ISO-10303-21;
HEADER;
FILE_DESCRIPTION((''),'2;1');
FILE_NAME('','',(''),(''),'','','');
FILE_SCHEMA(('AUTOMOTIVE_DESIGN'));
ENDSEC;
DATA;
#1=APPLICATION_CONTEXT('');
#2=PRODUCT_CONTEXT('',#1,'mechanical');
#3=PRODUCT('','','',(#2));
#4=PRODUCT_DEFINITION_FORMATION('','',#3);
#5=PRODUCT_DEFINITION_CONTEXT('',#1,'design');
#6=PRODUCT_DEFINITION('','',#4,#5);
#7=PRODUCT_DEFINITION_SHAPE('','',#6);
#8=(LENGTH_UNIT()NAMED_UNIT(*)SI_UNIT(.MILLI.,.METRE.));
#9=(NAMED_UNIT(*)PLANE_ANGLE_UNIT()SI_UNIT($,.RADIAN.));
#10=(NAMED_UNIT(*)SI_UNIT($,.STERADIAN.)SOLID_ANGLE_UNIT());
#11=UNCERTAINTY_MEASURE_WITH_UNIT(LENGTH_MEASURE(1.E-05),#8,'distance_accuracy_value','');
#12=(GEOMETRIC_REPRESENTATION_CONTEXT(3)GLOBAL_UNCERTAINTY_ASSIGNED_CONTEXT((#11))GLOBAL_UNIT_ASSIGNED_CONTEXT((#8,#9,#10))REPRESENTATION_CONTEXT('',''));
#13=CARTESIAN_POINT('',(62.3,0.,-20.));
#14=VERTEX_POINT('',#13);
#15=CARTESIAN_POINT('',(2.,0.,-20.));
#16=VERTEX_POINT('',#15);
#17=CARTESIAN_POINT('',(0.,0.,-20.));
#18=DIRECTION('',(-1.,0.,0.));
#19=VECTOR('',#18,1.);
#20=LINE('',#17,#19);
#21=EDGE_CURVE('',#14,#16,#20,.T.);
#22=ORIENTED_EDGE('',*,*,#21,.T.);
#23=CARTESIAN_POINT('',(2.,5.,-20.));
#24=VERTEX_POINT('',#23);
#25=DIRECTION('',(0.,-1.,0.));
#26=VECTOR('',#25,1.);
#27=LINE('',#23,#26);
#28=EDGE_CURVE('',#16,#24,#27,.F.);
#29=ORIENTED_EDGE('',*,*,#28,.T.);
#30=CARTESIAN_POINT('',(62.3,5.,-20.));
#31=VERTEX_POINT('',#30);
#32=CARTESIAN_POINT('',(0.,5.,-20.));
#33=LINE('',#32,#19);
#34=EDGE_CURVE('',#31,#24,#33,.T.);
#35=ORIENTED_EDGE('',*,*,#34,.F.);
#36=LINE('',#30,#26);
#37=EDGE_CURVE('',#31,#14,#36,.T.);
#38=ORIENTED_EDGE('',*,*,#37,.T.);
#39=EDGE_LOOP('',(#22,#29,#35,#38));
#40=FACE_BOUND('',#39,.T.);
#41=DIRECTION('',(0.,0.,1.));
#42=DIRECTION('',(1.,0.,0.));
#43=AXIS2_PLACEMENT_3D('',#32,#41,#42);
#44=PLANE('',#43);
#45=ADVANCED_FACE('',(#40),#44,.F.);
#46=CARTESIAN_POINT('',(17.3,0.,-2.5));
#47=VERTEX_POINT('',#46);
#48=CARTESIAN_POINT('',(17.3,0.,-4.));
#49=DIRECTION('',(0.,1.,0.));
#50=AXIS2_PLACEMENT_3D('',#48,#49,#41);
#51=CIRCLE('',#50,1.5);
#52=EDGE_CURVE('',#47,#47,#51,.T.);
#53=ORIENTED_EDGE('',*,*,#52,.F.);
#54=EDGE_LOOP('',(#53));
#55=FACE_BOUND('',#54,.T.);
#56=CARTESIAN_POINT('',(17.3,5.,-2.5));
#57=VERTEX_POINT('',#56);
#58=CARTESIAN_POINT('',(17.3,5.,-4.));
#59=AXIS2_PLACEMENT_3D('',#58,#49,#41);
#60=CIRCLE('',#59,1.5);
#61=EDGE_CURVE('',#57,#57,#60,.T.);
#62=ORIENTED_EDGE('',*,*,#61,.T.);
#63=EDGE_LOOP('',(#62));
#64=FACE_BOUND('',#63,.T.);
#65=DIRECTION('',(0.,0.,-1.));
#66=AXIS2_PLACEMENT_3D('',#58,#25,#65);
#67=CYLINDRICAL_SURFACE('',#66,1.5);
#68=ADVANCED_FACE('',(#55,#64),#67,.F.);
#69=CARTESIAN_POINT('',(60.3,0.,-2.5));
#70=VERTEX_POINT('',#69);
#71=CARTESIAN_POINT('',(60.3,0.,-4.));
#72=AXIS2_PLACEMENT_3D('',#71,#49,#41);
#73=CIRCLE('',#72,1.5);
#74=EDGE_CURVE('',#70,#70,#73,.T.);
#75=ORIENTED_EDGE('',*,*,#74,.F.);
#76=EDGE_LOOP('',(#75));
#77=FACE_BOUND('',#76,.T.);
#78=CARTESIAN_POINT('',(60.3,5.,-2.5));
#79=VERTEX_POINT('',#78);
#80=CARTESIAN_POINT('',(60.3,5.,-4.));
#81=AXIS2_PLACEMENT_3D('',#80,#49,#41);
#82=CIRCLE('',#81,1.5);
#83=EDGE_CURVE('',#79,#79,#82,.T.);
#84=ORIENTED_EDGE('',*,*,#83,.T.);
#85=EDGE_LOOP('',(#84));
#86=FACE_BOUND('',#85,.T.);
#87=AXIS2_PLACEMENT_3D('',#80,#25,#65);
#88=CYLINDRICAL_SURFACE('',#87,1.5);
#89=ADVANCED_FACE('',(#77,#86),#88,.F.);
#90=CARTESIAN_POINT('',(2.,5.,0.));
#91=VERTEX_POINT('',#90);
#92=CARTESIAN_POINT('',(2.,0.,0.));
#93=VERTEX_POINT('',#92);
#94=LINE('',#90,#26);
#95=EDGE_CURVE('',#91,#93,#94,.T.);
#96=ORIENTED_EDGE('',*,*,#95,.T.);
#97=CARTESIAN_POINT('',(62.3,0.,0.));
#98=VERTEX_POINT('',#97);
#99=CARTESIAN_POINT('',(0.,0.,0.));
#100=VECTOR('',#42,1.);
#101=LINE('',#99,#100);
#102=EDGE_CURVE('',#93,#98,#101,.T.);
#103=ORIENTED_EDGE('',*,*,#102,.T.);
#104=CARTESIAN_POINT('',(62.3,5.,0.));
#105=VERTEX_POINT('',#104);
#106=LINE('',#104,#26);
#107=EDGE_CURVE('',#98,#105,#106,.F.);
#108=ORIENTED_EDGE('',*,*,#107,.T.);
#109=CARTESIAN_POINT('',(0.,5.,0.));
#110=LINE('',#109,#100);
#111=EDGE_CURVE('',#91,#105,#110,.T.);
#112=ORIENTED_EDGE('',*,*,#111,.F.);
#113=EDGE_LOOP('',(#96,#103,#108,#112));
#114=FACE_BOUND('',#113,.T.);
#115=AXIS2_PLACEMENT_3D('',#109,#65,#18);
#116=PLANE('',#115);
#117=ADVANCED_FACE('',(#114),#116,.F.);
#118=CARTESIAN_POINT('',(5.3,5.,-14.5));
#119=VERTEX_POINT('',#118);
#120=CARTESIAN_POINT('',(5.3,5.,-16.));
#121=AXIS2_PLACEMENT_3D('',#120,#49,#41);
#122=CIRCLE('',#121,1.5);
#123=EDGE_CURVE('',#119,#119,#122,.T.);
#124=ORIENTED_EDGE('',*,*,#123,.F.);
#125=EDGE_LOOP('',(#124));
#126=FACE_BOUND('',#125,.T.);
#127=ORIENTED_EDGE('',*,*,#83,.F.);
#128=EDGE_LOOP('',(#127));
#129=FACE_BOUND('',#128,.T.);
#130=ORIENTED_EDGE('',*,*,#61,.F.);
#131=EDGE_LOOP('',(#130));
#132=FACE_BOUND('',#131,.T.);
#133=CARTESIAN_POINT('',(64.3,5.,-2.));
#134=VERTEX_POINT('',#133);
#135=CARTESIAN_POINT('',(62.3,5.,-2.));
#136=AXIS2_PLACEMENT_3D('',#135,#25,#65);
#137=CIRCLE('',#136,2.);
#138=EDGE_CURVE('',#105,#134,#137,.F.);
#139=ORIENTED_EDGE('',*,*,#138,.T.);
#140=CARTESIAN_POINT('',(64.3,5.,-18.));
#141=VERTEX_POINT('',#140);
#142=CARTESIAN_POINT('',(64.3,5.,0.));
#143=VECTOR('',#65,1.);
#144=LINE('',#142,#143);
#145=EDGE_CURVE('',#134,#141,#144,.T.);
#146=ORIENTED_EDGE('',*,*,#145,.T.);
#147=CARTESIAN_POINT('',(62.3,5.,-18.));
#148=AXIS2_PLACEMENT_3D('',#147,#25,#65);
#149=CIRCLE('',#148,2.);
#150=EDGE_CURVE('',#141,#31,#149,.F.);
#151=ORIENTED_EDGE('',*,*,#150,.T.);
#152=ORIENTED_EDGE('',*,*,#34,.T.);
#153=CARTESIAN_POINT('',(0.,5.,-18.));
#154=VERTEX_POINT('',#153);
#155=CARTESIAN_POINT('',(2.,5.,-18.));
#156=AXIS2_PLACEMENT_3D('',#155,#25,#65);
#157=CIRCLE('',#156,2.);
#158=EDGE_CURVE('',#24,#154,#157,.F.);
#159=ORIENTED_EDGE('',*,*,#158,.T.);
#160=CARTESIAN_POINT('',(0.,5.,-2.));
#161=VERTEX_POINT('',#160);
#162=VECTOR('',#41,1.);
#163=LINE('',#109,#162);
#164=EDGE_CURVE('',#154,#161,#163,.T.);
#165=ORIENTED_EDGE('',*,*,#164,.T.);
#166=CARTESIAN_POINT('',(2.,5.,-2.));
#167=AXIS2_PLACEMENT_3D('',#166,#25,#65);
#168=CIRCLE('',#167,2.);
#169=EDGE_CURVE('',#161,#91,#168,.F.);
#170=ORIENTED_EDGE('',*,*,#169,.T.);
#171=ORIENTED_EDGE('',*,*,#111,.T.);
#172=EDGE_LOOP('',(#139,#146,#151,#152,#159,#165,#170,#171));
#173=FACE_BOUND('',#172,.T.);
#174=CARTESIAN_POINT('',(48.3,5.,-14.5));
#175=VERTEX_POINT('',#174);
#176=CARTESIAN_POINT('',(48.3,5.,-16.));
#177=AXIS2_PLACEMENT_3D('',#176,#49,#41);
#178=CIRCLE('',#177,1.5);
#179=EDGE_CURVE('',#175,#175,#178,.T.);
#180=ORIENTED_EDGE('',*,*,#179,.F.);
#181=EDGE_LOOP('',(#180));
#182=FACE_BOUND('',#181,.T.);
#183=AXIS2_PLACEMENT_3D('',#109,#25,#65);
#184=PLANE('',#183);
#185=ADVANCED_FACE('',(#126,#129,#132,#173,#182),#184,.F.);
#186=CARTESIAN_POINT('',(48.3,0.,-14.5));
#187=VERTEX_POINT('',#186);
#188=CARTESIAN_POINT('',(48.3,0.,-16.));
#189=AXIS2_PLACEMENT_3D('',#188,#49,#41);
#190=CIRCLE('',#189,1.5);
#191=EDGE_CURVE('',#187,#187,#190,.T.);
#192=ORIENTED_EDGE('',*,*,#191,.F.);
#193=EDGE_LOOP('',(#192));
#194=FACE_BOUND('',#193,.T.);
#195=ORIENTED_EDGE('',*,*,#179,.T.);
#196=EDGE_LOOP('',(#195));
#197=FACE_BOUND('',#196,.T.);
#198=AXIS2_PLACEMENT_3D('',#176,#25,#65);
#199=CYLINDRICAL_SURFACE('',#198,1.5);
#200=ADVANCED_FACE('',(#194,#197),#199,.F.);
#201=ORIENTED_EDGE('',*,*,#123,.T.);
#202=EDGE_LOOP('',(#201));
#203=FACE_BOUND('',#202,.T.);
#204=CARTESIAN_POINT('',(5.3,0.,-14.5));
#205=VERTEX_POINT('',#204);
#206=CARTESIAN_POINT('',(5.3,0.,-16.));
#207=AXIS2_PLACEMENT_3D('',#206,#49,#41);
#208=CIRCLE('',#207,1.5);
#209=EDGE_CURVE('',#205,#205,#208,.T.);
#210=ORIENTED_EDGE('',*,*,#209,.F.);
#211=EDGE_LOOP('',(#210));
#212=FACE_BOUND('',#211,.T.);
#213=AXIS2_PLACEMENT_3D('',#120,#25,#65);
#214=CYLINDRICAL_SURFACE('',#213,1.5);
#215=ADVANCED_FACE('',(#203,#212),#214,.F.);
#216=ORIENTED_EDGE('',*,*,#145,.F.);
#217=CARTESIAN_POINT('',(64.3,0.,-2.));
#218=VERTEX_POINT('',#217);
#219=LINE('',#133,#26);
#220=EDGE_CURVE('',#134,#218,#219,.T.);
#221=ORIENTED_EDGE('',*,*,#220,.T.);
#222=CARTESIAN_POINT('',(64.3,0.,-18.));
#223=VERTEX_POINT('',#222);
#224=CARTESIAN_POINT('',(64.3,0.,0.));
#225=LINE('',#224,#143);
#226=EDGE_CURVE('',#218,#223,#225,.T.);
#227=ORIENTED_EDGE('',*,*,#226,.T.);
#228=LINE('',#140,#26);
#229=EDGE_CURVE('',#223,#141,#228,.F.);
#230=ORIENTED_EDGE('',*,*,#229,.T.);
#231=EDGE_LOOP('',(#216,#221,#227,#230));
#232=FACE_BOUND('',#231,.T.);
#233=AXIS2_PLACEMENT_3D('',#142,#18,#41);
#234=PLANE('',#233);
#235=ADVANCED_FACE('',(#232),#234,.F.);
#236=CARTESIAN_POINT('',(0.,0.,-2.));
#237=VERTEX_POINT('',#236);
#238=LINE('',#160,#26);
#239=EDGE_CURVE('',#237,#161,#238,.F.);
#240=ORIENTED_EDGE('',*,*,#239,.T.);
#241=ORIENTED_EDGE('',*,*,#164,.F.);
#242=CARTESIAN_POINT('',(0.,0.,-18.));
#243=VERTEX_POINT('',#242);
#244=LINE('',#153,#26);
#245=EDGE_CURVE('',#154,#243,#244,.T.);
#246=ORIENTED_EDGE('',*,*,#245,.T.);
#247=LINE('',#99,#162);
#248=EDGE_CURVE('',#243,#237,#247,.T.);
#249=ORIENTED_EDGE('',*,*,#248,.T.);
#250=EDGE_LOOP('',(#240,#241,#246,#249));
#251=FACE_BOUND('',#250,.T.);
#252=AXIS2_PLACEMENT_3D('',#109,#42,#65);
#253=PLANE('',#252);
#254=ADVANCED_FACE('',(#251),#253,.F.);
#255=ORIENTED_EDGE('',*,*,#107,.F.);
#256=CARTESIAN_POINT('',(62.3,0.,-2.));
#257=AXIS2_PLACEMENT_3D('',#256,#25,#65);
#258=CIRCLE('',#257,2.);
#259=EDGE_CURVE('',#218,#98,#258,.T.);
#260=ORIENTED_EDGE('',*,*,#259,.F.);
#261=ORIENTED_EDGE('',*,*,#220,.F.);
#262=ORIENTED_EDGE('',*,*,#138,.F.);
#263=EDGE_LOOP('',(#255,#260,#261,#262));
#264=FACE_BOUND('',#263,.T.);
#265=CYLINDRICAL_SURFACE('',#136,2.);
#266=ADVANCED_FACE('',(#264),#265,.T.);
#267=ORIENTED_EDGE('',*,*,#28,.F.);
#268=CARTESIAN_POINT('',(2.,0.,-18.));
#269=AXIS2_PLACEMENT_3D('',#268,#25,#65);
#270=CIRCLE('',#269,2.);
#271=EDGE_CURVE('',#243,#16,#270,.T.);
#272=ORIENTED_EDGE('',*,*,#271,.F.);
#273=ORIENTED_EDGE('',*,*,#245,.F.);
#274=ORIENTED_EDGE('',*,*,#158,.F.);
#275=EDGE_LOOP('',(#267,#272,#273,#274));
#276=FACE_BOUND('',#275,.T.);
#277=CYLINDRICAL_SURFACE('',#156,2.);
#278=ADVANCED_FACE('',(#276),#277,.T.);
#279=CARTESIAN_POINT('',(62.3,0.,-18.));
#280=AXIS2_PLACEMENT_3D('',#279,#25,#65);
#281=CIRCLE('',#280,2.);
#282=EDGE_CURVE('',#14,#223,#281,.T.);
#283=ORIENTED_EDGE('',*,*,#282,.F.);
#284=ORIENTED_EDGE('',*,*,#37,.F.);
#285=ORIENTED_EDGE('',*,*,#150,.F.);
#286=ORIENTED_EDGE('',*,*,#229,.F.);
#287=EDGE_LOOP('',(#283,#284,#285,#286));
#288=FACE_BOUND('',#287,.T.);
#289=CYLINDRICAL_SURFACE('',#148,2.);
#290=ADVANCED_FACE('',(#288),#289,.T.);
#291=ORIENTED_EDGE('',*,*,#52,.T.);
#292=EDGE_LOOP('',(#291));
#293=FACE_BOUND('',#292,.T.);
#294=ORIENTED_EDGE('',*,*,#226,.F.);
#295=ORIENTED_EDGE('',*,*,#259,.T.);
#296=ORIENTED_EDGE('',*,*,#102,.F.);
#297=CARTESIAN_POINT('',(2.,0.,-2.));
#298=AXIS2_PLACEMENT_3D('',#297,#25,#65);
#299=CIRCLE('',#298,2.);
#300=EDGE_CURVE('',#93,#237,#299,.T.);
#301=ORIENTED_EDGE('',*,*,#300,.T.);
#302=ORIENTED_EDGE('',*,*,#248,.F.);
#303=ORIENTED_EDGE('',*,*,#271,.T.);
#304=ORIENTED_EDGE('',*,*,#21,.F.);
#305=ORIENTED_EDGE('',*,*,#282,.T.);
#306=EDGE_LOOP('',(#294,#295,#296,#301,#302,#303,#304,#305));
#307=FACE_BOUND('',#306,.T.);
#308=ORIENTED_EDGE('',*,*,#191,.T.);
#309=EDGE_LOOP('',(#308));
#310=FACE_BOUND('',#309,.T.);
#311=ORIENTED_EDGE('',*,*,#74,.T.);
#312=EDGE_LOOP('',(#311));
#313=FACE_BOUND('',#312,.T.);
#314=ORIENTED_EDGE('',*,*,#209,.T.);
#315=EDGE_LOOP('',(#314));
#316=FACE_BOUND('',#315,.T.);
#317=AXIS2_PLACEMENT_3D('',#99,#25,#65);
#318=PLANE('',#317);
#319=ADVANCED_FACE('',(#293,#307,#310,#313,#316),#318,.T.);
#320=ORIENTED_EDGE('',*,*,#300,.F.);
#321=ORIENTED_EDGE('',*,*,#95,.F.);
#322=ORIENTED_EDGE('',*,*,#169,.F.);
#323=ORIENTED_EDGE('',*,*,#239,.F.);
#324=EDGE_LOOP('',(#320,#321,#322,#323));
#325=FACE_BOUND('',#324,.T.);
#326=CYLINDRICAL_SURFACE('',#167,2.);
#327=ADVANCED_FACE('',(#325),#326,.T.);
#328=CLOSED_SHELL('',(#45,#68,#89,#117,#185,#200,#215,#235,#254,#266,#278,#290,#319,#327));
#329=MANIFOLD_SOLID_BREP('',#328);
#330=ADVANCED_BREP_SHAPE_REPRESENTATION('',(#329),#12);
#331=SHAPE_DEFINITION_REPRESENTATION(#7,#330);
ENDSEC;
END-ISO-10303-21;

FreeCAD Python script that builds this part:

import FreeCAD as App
import Part
import Sketcher
Q = App.Units.Quantity


def edges_at(feature, points):
    """Names of the edges that pass closest to the given points."""
    edges = feature.Shape.Edges
    near = lambda p: min(range(len(edges)), key=lambda i: edges[i].distToShape(Part.Vertex(*p))[0])
    return sorted({f"Edge{near(p) + 1}" for p in points})


def add_polygon(sketch, points):
    """Adds a closed chain of lines whose ends are joined by coincident constraints."""
    first, n = sketch.GeometryCount, len(points)
    for a, b in zip(points, points[1:] + points[:1]):
        sketch.addGeometry(Part.LineSegment(App.Vector(*a, 0), App.Vector(*b, 0)), False)
    for i in range(n):
        sketch.addConstraint(Sketcher.Constraint("Coincident", first + i, 2, first + (i + 1) % n, 1))

doc = App.newDocument("Part")
body = doc.addObject("PartDesign::Body", "Body")

sketch1 = doc.addObject("Sketcher::SketchObject", "Sketch")
body.addObject(sketch1)
sketch1.AttachmentSupport = (doc.XZ_Plane, [""])
sketch1.MapMode = "FlatFace"
add_polygon(sketch1, [(0, -20), (0, 0), (64.3, 0), (64.3, -20)])
sketch1.addGeometry(Part.Circle(App.Vector(17.3, -4, 0), App.Vector(0, 0, 1), 1.5), False)
sketch1.addGeometry(Part.Circle(App.Vector(60.3, -4, 0), App.Vector(0, 0, 1), 1.5), False)
sketch1.addGeometry(Part.Circle(App.Vector(5.3, -16, 0), App.Vector(0, 0, 1), 1.5), False)
sketch1.addGeometry(Part.Circle(App.Vector(48.3, -16, 0), App.Vector(0, 0, 1), 1.5), False)
sketch1.addConstraint(Sketcher.Constraint("Vertical", 0))
sketch1.addConstraint(Sketcher.Constraint("Horizontal", 1))
sketch1.addConstraint(Sketcher.Constraint("Vertical", 2))
sketch1.addConstraint(Sketcher.Constraint("Horizontal", 3))
sketch1.addConstraint(Sketcher.Constraint("Coincident", 0, 2, -1, 1))
sketch1.addConstraint(Sketcher.Constraint("Equal", 4, 5))
sketch1.addConstraint(Sketcher.Constraint("Equal", 5, 6))
sketch1.addConstraint(Sketcher.Constraint("Equal", 6, 7))
sketch1.addConstraint(Sketcher.Constraint("Horizontal", 4, 3, 5, 3))
sketch1.addConstraint(Sketcher.Constraint("Horizontal", 6, 3, 7, 3))
sketch1.addConstraint(Sketcher.Constraint("Diameter", 4, Q("3 mm")))
sketch1.addConstraint(Sketcher.Constraint("DistanceY", 0, 1, 0, 2, Q("20 mm")))
sketch1.addConstraint(Sketcher.Constraint("DistanceX", 1, 1, 1, 2, Q("64.3 mm")))
sketch1.addConstraint(Sketcher.Constraint("DistanceY", 4, 3, -1, 1, Q("4 mm")))
sketch1.addConstraint(Sketcher.Constraint("DistanceY", 6, 3, -1, 1, Q("16 mm")))
sketch1.addConstraint(Sketcher.Constraint("DistanceX", 4, 3, 5, 3, Q("43 mm")))
sketch1.addConstraint(Sketcher.Constraint("DistanceX", 6, 3, 4, 3, Q("12 mm")))
sketch1.addConstraint(Sketcher.Constraint("DistanceX", 7, 3, 5, 3, Q("12 mm")))
sketch1.addConstraint(Sketcher.Constraint("DistanceX", 5, 3, 1, 2, Q("4 mm")))
pad1 = doc.addObject("PartDesign::Pad", "Pad")
body.addObject(pad1)
pad1.Profile = sketch1
pad1.Length = 5
pad1.Reversed = True
doc.recompute()

fillet = doc.addObject("PartDesign::Fillet", "Fillet")
body.addObject(fillet)
fillet.Base = (pad1, edges_at(pad1, [
    (0, 2.5, -20),
    (64.3, 2.5, -20),
    (64.3, 2.5, 0),
    (0, 2.5, 0),
]))
fillet.Radius = 2

doc.recompute()
